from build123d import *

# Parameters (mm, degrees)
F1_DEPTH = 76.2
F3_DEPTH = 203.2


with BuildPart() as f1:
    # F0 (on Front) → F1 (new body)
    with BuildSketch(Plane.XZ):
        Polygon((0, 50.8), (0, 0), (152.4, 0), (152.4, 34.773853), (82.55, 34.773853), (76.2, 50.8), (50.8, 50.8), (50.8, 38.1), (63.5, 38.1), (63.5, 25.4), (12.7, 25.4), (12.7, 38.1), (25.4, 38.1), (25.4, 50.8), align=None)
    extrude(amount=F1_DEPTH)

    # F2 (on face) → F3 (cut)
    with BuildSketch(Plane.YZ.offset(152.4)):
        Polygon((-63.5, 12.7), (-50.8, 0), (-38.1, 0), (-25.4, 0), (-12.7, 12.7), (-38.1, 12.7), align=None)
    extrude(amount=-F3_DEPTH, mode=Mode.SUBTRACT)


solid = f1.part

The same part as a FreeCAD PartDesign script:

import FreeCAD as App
import Part
import Sketcher
Q = App.Units.Quantity

doc = App.newDocument("Part")
body = doc.addObject("PartDesign::Body", "Body")

sketch1 = doc.addObject("Sketcher::SketchObject", "Sketch")
body.addObject(sketch1)
sketch1.AttachmentSupport = (doc.XZ_Plane, [""])
sketch1.MapMode = "FlatFace"
sketch1.addGeometry([
    Part.LineSegment(App.Vector(0, 50.8, 0), App.Vector(0, 0, 0)),
    Part.LineSegment(App.Vector(0, 0, 0), App.Vector(152.4, 0, 0)),
    Part.LineSegment(App.Vector(152.4, 0, 0), App.Vector(152.4, 34.773853, 0)),
    Part.LineSegment(App.Vector(152.4, 34.773853, 0), App.Vector(82.55, 34.773853, 0)),
    Part.LineSegment(App.Vector(82.55, 34.773853, 0), App.Vector(76.2, 50.8, 0)),
    Part.LineSegment(App.Vector(76.2, 50.8, 0), App.Vector(50.8, 50.8, 0)),
    Part.LineSegment(App.Vector(50.8, 50.8, 0), App.Vector(50.8, 38.1, 0)),
    Part.LineSegment(App.Vector(50.8, 38.1, 0), App.Vector(63.5, 38.1, 0)),
    Part.LineSegment(App.Vector(63.5, 38.1, 0), App.Vector(63.5, 25.4, 0)),
    Part.LineSegment(App.Vector(63.5, 25.4, 0), App.Vector(12.7, 25.4, 0)),
    Part.LineSegment(App.Vector(12.7, 25.4, 0), App.Vector(12.7, 38.1, 0)),
    Part.LineSegment(App.Vector(12.7, 38.1, 0), App.Vector(25.4, 38.1, 0)),
    Part.LineSegment(App.Vector(25.4, 38.1, 0), App.Vector(25.4, 50.8, 0)),
    Part.LineSegment(App.Vector(25.4, 50.8, 0), App.Vector(0, 50.8, 0)),
], False)
sketch1.addConstraint([
    Sketcher.Constraint("Coincident", 0, 2, 1, 1),
    Sketcher.Constraint("Coincident", 1, 2, 2, 1),
    Sketcher.Constraint("Coincident", 2, 2, 3, 1),
    Sketcher.Constraint("Coincident", 3, 2, 4, 1),
    Sketcher.Constraint("Coincident", 4, 2, 5, 1),
    Sketcher.Constraint("Coincident", 5, 2, 6, 1),
    Sketcher.Constraint("Coincident", 6, 2, 7, 1),
    Sketcher.Constraint("Coincident", 7, 2, 8, 1),
    Sketcher.Constraint("Coincident", 8, 2, 9, 1),
    Sketcher.Constraint("Coincident", 9, 2, 10, 1),
    Sketcher.Constraint("Coincident", 10, 2, 11, 1),
    Sketcher.Constraint("Coincident", 11, 2, 12, 1),
    Sketcher.Constraint("Coincident", 12, 2, 13, 1),
    Sketcher.Constraint("Coincident", 13, 2, 0, 1),
    Sketcher.Constraint("Vertical", 0),
    Sketcher.Constraint("Horizontal", 1),
    Sketcher.Constraint("Vertical", 2),
    Sketcher.Constraint("Horizontal", 3),
    Sketcher.Constraint("Horizontal", 5),
    Sketcher.Constraint("Vertical", 6),
    Sketcher.Constraint("Horizontal", 7),
    Sketcher.Constraint("Vertical", 8),
    Sketcher.Constraint("Horizontal", 9),
    Sketcher.Constraint("Vertical", 10),
    Sketcher.Constraint("Horizontal", 11),
    Sketcher.Constraint("Vertical", 12),
    Sketcher.Constraint("Horizontal", 13),
    Sketcher.Constraint("Coincident", 0, 2, -1, 1),
    Sketcher.Constraint("Horizontal", 7, 2, 10, 2),
    Sketcher.Constraint("Horizontal", 5, 2, 12, 2),
    Sketcher.Constraint("Equal", 7, 11),
    Sketcher.Constraint("Equal", 5, 13),
    Sketcher.Constraint("Equal", 9, 0),
    Sketcher.Constraint("Equal", 11, 6),
    Sketcher.Constraint("Equal", 6, 8),
    Sketcher.Constraint("DistanceX", 1, 1, 1, 2, Q("6 in")),
    Sketcher.Constraint("DistanceX", 5, 2, 5, 1, Q("1 in")),
    Sketcher.Constraint("DistanceX", 9, 2, 9, 1, Q("2 in")),
    Sketcher.Constraint("DistanceX", 7, 1, 7, 2, Q("0.5 in")),
    Sketcher.Constraint("DistanceX", 3, 2, 3, 1, Q("2.75 in")),
    Sketcher.Constraint("DistanceY", 2, 1, 2, 2, 34.773853),
])
pad1 = doc.addObject("PartDesign::Pad", "Pad")
body.addObject(pad1)
pad1.Profile = sketch1
pad1.Length = Q("3 in")

sketch2 = doc.addObject("Sketcher::SketchObject", "Sketch001")
body.addObject(sketch2)
sketch2.AttachmentSupport = (doc.YZ_Plane, [""])
sketch2.MapMode = "FlatFace"
sketch2.AttachmentOffset = App.Placement(App.Vector(0, 0, 6 * 25.4), App.Rotation())
sketch2.addGeometry([
    Part.LineSegment(App.Vector(-63.5, 12.7, 0), App.Vector(-50.8, 0, 0)),
    Part.LineSegment(App.Vector(-50.8, 0, 0), App.Vector(-25.4, 0, 0)),
    Part.LineSegment(App.Vector(-25.4, 0, 0), App.Vector(-12.7, 12.7, 0)),
    Part.LineSegment(App.Vector(-12.7, 12.7, 0), App.Vector(-63.5, 12.7, 0)),
], False)
sketch2.addConstraint([
    Sketcher.Constraint("Coincident", 0, 2, 1, 1),
    Sketcher.Constraint("Coincident", 1, 2, 2, 1),
    Sketcher.Constraint("Coincident", 2, 2, 3, 1),
    Sketcher.Constraint("Coincident", 3, 2, 0, 1),
    Sketcher.Constraint("Horizontal", 1),
    Sketcher.Constraint("Horizontal", 3),
    Sketcher.Constraint("PointOnObject", 0, 2, -1),
    Sketcher.Constraint("Perpendicular", 0, 2),
    Sketcher.Constraint("Equal", 0, 2),
    Sketcher.Constraint("DistanceX", 1, 1, 1, 2, Q("1 in")),
    Sketcher.Constraint("DistanceX", 3, 2, 3, 1, Q("2 in")),
    Sketcher.Constraint("DistanceX", 0, 2, -1, 1, Q("2 in")),
])
pocket1 = doc.addObject("PartDesign::Pocket", "Pocket")
body.addObject(pocket1)
pocket1.Profile = sketch2
pocket1.Length = Q("8 in")

doc.recompute()
